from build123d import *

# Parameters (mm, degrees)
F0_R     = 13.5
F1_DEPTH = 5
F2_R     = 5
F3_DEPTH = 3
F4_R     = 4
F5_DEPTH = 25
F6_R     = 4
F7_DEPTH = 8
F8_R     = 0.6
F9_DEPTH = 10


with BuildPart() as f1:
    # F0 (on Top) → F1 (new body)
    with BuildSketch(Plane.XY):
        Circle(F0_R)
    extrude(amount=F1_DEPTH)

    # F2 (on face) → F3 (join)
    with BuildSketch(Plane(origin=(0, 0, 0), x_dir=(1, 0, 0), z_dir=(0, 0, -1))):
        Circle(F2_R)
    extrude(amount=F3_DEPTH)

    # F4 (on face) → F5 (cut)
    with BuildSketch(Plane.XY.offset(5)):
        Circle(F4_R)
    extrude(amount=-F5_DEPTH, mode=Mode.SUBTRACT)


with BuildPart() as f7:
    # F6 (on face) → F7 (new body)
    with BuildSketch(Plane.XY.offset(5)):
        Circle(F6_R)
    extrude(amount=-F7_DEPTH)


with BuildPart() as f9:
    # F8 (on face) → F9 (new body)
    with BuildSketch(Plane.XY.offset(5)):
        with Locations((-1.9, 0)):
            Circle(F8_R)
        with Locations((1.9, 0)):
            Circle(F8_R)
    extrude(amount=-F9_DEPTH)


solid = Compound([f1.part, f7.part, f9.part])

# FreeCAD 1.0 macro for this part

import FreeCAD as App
import Part
import Sketcher

V = App.Vector
Q = App.Units.Quantity

doc = App.newDocument("Part")
body = doc.addObject("PartDesign::Body", "Body")

# Sketch on XY plane
sketch1 = body.newObject("Sketcher::SketchObject", "Sketch")
sketch1.AttachmentSupport = (doc.getObject("XY_Plane"), [""])
sketch1.MapMode = "FlatFace"
sketch1.addGeometry(Part.Circle(V(0, 0, 0), V(0, 0, 1), 13.5), False)
sketch1.addConstraint([
    Sketcher.Constraint("Coincident", 0, 3, -1, 1),
    Sketcher.Constraint("Diameter", 0, Q("27 mm")),
])
pad1 = body.newObject("PartDesign::Pad", "Pad")
pad1.Profile = sketch1
pad1.Length = 5

# Sketch on XY plane
sketch2 = body.newObject("Sketcher::SketchObject", "Sketch001")
sketch2.AttachmentSupport = (doc.getObject("XY_Plane"), [""])
sketch2.MapMode = "FlatFace"
sketch2.addGeometry(Part.Circle(V(0, 0, 0), V(0, 0, 1), 5), False)
sketch2.addConstraint([
    Sketcher.Constraint("Coincident", 0, 3, -1, 1),
    Sketcher.Constraint("Diameter", 0, Q("10 mm")),
])
pad2 = body.newObject("PartDesign::Pad", "Pad001")
pad2.Profile = sketch2
pad2.Length = 3
pad2.Reversed = True

# Sketch on XY plane
sketch3 = body.newObject("Sketcher::SketchObject", "Sketch002")
sketch3.AttachmentSupport = (doc.getObject("XY_Plane"), [""])
sketch3.MapMode = "FlatFace"
sketch3.AttachmentOffset = App.Placement(V(0, 0, 5), App.Rotation())
sketch3.addGeometry(Part.Circle(V(0, 0, 0), V(0, 0, 1), 4), False)
sketch3.addConstraint([
    Sketcher.Constraint("Coincident", 0, 3, -1, 1),
    Sketcher.Constraint("Diameter", 0, Q("8 mm")),
])
pocket1 = body.newObject("PartDesign::Pocket", "Pocket")
pocket1.Profile = sketch3
pocket1.Length = 25
body2 = doc.addObject("PartDesign::Body", "Body001")

# Sketch on XY plane
sketch4 = body2.newObject("Sketcher::SketchObject", "Sketch003")
sketch4.AttachmentSupport = (doc.getObject("XY_Plane001"), [""])
sketch4.MapMode = "FlatFace"
sketch4.AttachmentOffset = App.Placement(V(0, 0, 5), App.Rotation())
sketch4.addGeometry(Part.Circle(V(0, 0, 0), V(0, 0, 1), 4), False)
sketch4.addConstraint([
    Sketcher.Constraint("Coincident", 0, 3, -1, 1),
    Sketcher.Constraint("Diameter", 0, Q("8 mm")),
])
pad3 = body2.newObject("PartDesign::Pad", "Pad002")
pad3.Profile = sketch4
pad3.Length = 8
pad3.Reversed = True
body3 = doc.addObject("PartDesign::Body", "Body002")
body3.AllowCompound = True

# Sketch on XY plane
sketch5 = body3.newObject("Sketcher::SketchObject", "Sketch004")
sketch5.AttachmentSupport = (doc.getObject("XY_Plane002"), [""])
sketch5.MapMode = "FlatFace"
sketch5.AttachmentOffset = App.Placement(V(0, 0, 5), App.Rotation())
sketch5.addGeometry([
    Part.Circle(V(-1.9, 0, 0), V(0, 0, 1), 0.6),
    Part.Circle(V(1.9, 0, 0), V(0, 0, 1), 0.6),
], False)
sketch5.addConstraint([
    Sketcher.Constraint("Equal", 0, 1),
    Sketcher.Constraint("Symmetric", 0, 3, 1, 3, -1, 1),
    Sketcher.Constraint("PointOnObject", 0, 3, -1),
    Sketcher.Constraint("Diameter", 0, Q("1.2 mm")),
    Sketcher.Constraint("DistanceX", 0, 3, -1, 1, Q("1.9 mm")),
])
pad4 = body3.newObject("PartDesign::Pad", "Pad003")
pad4.Profile = sketch5
pad4.Length = 10
pad4.Reversed = True

doc.recompute()
